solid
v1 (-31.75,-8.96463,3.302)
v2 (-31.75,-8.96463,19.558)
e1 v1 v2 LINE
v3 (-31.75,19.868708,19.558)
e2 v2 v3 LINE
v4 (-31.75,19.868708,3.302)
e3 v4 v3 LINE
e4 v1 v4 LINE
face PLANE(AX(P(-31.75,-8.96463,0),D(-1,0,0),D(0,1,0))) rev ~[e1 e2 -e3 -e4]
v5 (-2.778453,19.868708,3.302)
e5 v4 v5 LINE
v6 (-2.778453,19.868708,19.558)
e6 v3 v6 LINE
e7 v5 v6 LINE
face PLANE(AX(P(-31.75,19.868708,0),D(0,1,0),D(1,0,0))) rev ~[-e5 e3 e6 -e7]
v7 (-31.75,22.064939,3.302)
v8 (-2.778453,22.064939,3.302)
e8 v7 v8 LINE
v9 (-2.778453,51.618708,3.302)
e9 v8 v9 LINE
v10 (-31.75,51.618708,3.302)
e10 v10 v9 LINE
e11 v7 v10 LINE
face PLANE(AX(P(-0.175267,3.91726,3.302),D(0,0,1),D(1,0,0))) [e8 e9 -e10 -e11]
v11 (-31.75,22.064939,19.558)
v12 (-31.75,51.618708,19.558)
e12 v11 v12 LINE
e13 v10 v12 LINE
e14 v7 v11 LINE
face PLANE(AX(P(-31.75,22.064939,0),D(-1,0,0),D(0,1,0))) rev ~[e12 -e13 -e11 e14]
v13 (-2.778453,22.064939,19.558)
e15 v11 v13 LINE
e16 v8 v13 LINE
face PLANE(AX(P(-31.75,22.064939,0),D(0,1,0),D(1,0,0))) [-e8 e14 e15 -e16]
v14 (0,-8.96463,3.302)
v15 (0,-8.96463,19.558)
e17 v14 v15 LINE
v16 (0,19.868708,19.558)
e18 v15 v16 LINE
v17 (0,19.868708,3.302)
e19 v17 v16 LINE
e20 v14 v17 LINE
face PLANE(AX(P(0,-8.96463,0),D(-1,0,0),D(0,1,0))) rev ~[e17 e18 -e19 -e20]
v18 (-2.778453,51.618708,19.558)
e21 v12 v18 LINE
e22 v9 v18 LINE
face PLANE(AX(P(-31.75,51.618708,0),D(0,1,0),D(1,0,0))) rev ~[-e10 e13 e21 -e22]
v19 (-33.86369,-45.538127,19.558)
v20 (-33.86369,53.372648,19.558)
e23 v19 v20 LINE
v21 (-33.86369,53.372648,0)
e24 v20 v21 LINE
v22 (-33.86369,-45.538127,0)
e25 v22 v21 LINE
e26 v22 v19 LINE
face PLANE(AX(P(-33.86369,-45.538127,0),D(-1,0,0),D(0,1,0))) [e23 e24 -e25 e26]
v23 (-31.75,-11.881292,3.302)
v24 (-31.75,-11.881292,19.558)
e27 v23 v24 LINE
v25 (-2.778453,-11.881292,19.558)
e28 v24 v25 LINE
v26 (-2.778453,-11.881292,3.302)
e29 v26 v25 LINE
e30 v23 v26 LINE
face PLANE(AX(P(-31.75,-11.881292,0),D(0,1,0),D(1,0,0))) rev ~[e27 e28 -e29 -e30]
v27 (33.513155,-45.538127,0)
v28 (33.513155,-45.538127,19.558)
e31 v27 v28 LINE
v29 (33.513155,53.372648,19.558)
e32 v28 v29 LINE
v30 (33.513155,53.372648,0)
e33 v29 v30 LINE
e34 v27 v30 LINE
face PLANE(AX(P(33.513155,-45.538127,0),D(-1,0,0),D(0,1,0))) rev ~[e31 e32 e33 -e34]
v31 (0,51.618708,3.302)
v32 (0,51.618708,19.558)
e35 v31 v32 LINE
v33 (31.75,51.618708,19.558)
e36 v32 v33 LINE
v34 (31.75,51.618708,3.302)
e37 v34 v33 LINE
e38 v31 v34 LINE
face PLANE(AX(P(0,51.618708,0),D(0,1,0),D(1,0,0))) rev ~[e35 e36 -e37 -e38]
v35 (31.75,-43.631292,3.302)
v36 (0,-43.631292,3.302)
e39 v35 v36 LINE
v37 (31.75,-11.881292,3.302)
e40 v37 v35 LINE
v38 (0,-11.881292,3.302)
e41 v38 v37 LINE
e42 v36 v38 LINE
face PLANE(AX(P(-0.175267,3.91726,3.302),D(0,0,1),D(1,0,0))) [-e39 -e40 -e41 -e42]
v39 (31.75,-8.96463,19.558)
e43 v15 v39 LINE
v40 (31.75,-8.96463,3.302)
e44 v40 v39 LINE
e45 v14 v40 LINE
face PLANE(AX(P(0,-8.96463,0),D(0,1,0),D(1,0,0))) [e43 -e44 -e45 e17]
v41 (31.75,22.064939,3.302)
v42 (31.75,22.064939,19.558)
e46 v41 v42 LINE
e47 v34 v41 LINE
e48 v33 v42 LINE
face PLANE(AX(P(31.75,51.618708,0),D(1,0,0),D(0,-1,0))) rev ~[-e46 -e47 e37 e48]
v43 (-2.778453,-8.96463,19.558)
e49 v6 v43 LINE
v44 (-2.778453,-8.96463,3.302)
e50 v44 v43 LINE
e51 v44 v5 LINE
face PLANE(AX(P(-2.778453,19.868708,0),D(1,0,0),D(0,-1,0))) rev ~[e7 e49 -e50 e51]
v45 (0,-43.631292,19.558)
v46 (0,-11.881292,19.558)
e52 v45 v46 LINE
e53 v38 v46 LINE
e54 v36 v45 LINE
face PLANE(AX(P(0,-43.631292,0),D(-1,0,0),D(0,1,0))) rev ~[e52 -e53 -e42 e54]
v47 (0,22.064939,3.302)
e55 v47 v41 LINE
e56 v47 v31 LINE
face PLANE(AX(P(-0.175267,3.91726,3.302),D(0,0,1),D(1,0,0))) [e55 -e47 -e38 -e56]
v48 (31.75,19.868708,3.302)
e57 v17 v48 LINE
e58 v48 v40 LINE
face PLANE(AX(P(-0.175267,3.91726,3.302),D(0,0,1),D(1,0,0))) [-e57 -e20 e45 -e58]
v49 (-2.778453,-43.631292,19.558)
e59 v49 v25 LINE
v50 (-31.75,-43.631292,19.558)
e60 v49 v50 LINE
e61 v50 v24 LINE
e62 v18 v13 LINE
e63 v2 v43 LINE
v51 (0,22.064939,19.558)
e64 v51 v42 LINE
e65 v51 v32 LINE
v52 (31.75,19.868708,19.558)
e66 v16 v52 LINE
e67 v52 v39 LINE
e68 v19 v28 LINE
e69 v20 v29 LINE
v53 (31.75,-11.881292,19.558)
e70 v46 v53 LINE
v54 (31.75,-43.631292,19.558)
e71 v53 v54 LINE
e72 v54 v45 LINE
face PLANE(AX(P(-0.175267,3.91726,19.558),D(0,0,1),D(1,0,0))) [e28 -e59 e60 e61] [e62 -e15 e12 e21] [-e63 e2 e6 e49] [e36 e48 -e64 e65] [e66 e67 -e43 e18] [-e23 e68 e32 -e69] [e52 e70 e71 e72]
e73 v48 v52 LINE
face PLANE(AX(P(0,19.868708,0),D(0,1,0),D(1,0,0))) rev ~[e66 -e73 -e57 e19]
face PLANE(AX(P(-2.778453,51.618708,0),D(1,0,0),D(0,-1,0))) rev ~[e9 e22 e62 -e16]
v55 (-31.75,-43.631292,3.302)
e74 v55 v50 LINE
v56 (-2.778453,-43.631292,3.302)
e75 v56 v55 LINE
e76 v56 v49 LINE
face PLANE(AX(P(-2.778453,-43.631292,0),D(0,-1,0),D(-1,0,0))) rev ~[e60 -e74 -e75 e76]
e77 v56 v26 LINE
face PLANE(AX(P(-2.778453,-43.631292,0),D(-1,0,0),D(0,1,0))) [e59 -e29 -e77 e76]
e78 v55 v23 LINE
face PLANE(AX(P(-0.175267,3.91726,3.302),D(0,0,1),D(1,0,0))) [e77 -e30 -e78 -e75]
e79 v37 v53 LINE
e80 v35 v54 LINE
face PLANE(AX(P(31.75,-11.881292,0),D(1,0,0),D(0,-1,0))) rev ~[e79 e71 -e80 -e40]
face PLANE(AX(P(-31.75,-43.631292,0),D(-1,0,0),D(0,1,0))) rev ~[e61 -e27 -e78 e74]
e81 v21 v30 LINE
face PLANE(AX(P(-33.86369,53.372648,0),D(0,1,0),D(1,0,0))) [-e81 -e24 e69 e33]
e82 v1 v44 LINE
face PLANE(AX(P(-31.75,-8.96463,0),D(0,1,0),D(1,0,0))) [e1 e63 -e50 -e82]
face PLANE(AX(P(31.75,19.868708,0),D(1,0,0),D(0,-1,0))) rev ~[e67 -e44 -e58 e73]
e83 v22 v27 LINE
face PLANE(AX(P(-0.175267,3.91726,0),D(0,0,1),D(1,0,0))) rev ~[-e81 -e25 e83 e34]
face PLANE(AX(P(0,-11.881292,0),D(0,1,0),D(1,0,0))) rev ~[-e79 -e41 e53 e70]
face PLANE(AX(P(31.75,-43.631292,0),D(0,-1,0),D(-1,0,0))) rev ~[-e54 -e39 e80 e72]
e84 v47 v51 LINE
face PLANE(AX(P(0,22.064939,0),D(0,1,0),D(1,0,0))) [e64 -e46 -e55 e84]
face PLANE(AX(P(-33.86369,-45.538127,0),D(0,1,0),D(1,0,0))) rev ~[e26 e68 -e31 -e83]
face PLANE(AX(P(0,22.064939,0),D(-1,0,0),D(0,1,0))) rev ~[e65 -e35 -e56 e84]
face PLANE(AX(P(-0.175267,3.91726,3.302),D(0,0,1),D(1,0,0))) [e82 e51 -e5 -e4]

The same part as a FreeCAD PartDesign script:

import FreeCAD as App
import Part
import Sketcher
Q = App.Units.Quantity


def add_polygon(sketch, points):
    """Adds a closed chain of lines whose ends are joined by coincident constraints."""
    first, n = sketch.GeometryCount, len(points)
    for a, b in zip(points, points[1:] + points[:1]):
        sketch.addGeometry(Part.LineSegment(App.Vector(*a, 0), App.Vector(*b, 0)), False)
    for i in range(n):
        sketch.addConstraint(Sketcher.Constraint("Coincident", first + i, 2, first + (i + 1) % n, 1))

doc = App.newDocument("Part")
body = doc.addObject("PartDesign::Body", "Body")

# Sketch on XY plane
sketch1 = body.newObject("Sketcher::SketchObject", "Sketch")
sketch1.AttachmentSupport = (doc.getObject("XY_Plane"), [""])
sketch1.MapMode = "FlatFace"
add_polygon(sketch1, [(-34, 53), (-34, -46), (34, -46), (34, 53)])  # lines 0-3
add_polygon(sketch1, [(-32, -12), (-3, -12), (-3, -44), (-32, -44)])  # lines 4-7
add_polygon(sketch1, [(0, -9), (0, 20), (32, 20), (32, -9)])  # lines 8-11
add_polygon(sketch1, [(32, -12), (32, -44), (0, -44), (0, -12)])  # lines 12-15
add_polygon(sketch1, [(-3, -9), (-32, -9), (-32, 20), (-3, 20)])  # lines 16-19
add_polygon(sketch1, [(-32, 22), (-32, 52), (-3, 52), (-3, 22)])  # lines 20-23
add_polygon(sketch1, [(0, 22), (0, 52), (32, 52), (32, 22)])  # lines 24-27
sketch1.addConstraint([
    Sketcher.Constraint("Vertical", 0),
    Sketcher.Constraint("Horizontal", 1),
    Sketcher.Constraint("Vertical", 2),
    Sketcher.Constraint("Horizontal", 3),
    Sketcher.Constraint("Horizontal", 4),
    Sketcher.Constraint("Vertical", 5),
    Sketcher.Constraint("Horizontal", 6),
    Sketcher.Constraint("Vertical", 7),
    Sketcher.Constraint("Vertical", 8),
    Sketcher.Constraint("Horizontal", 9),
    Sketcher.Constraint("Vertical", 10),
    Sketcher.Constraint("Horizontal", 11),
    Sketcher.Constraint("Vertical", 12),
    Sketcher.Constraint("Horizontal", 13),
    Sketcher.Constraint("Vertical", 14),
    Sketcher.Constraint("Horizontal", 15),
    Sketcher.Constraint("Horizontal", 16),
    Sketcher.Constraint("Vertical", 17),
    Sketcher.Constraint("Horizontal", 18),
    Sketcher.Constraint("Vertical", 19),
    Sketcher.Constraint("Vertical", 20),
    Sketcher.Constraint("Horizontal", 21),
    Sketcher.Constraint("Vertical", 22),
    Sketcher.Constraint("Horizontal", 23),
    Sketcher.Constraint("Vertical", 24),
    Sketcher.Constraint("Horizontal", 25),
    Sketcher.Constraint("Vertical", 26),
    Sketcher.Constraint("Horizontal", 27),
    Sketcher.Constraint("Symmetric", 6, 2, 12, 2, -2),
    Sketcher.Constraint("Symmetric", 10, 2, 16, 2, -2),
    Sketcher.Constraint("Symmetric", 20, 2, 25, 2, -2),
    Sketcher.Constraint("PointOnObject", 8, 2, -2),
    Sketcher.Constraint("PointOnObject", 13, 2, -2),
    Sketcher.Constraint("PointOnObject", 24, 2, -2),
    Sketcher.Constraint("Horizontal", 7, 2, 14, 2),
    Sketcher.Constraint("Horizontal", 9, 2, 17, 2),
    Sketcher.Constraint("Horizontal", 23, 2, 26, 2),
    Sketcher.Constraint("Vertical", 10, 2, 12, 2),
    Sketcher.Constraint("Vertical", 5, 2, 18, 2),
    Sketcher.Constraint("Vertical", 17, 2, 20, 2),
    Sketcher.Constraint("Vertical", 19, 2, 21, 2),
    Sketcher.Constraint("Equal", 27, 5),
    Sketcher.Constraint("DistanceX", 9, 1, 9, 2, Q("1.25 in")),
    Sketcher.Constraint("DistanceY", 5, 2, 8, 2, Q("2.5 in")),
    Sketcher.Constraint("DistanceY", 17, 2, 20, 2, Q("1.25 in")),
    Sketcher.Constraint("DistanceY", 20, 1, 20, 2, Q("29.553769 mm")),
    Sketcher.Constraint("DistanceX", 1, 1, 1, 2, Q("67.376845 mm")),
    Sketcher.Constraint("DistanceX", 4, 1, 4, 2, Q("28.971547 mm")),
    Sketcher.Constraint("DistanceY", 0, 2, 0, 1, Q("98.910775 mm")),
    Sketcher.Constraint("DistanceY", 8, 1, 8, 2, Q("28.833338 mm")),
    Sketcher.Constraint("DistanceX", 0, 2, -1, 1, Q("33.86369 mm")),
    Sketcher.Constraint("DistanceY", 10, 2, -1, 1, Q("8.96463 mm")),
    Sketcher.Constraint("DistanceY", 4, 2, 3, 2, Q("65.25394 mm")),
])
pad1 = body.newObject("PartDesign::Pad", "Pad")
pad1.Profile = sketch1
pad1.Length = Q("0.77 in")

# Sketch on XY plane
sketch2 = body.newObject("Sketcher::SketchObject", "Sketch001")
sketch2.AttachmentSupport = (doc.getObject("XY_Plane"), [""])
sketch2.MapMode = "FlatFace"
add_polygon(sketch2, [(-33.9, 53.4), (-33.9, -45.5), (33.5, -45.5), (33.5, 53.4)])  # lines 0-3
add_polygon(sketch2, [(-31.8, -11.9), (-31.8, -9), (-2.8, -9), (-2.8, 19.9), (-31.8, 19.9), (-31.8, 22.1), (-2.8, 22.1), (-2.8, 51.6), (0, 51.6), (0, 22.1), (31.8, 22.1), (31.8, 19.9), (0, 19.9), (0, -9), (31.8, -9), (31.8, -11.9), (0, -11.9), (0, -43.6), (-2.8, -43.6), (-2.8, -11.9)])  # lines 4-23
sketch2.addConstraint([
    Sketcher.Constraint("Vertical", 0),
    Sketcher.Constraint("Horizontal", 1),
    Sketcher.Constraint("Vertical", 2),
    Sketcher.Constraint("Horizontal", 3),
    Sketcher.Constraint("Vertical", 4),
    Sketcher.Constraint("Horizontal", 5),
    Sketcher.Constraint("Vertical", 6),
    Sketcher.Constraint("Horizontal", 7),
    Sketcher.Constraint("Vertical", 8),
    Sketcher.Constraint("Horizontal", 9),
    Sketcher.Constraint("Vertical", 10),
    Sketcher.Constraint("Horizontal", 11),
    Sketcher.Constraint("Vertical", 12),
    Sketcher.Constraint("Horizontal", 13),
    Sketcher.Constraint("Vertical", 14),
    Sketcher.Constraint("Horizontal", 15),
    Sketcher.Constraint("Vertical", 16),
    Sketcher.Constraint("Horizontal", 17),
    Sketcher.Constraint("Vertical", 18),
    Sketcher.Constraint("Horizontal", 19),
    Sketcher.Constraint("Vertical", 20),
    Sketcher.Constraint("Horizontal", 21),
    Sketcher.Constraint("Vertical", 22),
    Sketcher.Constraint("Horizontal", 23),
    Sketcher.Constraint("Symmetric", 8, 2, 13, 2, -2),
    Sketcher.Constraint("Symmetric", 4, 2, 17, 2, -2),
    Sketcher.Constraint("PointOnObject", 11, 2, -2),
    Sketcher.Constraint("PointOnObject", 15, 2, -2),
    Sketcher.Constraint("PointOnObject", 19, 2, -2),
    Sketcher.Constraint("Horizontal", 7, 2, 14, 2),
    Sketcher.Constraint("Horizontal", 19, 2, 22, 2),
    Sketcher.Constraint("Vertical", 4, 2, 7, 2),
    Sketcher.Constraint("Vertical", 6, 2, 9, 2),
    Sketcher.Constraint("Vertical", 10, 2, 21, 2),
    Sketcher.Constraint("Equal", 19, 20),
    Sketcher.Constraint("DistanceX", 13, 1, 13, 2, Q("1.25 in")),
    Sketcher.Constraint("DistanceY", 6, 2, 10, 2, Q("1.25 in")),
    Sketcher.Constraint("DistanceY", 18, 2, 14, 2, Q("1.25 in")),
    Sketcher.Constraint("DistanceY", 8, 1, 8, 2, Q("2.196231 mm")),
    Sketcher.Constraint("DistanceX", 1, 1, 1, 2, Q("67.376845 mm")),
    Sketcher.Constraint("DistanceX", 5, 1, 5, 2, Q("28.971547 mm")),
    Sketcher.Constraint("DistanceY", 0, 2, 0, 1, Q("98.910775 mm")),
    Sketcher.Constraint("DistanceY", 4, 1, 4, 2, Q("2.916662 mm")),
    Sketcher.Constraint("DistanceX", 0, 2, -1, 1, Q("33.86369 mm")),
    Sketcher.Constraint("DistanceY", 4, 2, -1, 1, Q("8.96463 mm")),
    Sketcher.Constraint("DistanceY", 6, 2, 3, 2, Q("33.50394 mm")),
])
pad2 = body.newObject("PartDesign::Pad", "Pad001")
pad2.Profile = sketch2
pad2.Length = Q("0.13 in")

doc.recompute()
